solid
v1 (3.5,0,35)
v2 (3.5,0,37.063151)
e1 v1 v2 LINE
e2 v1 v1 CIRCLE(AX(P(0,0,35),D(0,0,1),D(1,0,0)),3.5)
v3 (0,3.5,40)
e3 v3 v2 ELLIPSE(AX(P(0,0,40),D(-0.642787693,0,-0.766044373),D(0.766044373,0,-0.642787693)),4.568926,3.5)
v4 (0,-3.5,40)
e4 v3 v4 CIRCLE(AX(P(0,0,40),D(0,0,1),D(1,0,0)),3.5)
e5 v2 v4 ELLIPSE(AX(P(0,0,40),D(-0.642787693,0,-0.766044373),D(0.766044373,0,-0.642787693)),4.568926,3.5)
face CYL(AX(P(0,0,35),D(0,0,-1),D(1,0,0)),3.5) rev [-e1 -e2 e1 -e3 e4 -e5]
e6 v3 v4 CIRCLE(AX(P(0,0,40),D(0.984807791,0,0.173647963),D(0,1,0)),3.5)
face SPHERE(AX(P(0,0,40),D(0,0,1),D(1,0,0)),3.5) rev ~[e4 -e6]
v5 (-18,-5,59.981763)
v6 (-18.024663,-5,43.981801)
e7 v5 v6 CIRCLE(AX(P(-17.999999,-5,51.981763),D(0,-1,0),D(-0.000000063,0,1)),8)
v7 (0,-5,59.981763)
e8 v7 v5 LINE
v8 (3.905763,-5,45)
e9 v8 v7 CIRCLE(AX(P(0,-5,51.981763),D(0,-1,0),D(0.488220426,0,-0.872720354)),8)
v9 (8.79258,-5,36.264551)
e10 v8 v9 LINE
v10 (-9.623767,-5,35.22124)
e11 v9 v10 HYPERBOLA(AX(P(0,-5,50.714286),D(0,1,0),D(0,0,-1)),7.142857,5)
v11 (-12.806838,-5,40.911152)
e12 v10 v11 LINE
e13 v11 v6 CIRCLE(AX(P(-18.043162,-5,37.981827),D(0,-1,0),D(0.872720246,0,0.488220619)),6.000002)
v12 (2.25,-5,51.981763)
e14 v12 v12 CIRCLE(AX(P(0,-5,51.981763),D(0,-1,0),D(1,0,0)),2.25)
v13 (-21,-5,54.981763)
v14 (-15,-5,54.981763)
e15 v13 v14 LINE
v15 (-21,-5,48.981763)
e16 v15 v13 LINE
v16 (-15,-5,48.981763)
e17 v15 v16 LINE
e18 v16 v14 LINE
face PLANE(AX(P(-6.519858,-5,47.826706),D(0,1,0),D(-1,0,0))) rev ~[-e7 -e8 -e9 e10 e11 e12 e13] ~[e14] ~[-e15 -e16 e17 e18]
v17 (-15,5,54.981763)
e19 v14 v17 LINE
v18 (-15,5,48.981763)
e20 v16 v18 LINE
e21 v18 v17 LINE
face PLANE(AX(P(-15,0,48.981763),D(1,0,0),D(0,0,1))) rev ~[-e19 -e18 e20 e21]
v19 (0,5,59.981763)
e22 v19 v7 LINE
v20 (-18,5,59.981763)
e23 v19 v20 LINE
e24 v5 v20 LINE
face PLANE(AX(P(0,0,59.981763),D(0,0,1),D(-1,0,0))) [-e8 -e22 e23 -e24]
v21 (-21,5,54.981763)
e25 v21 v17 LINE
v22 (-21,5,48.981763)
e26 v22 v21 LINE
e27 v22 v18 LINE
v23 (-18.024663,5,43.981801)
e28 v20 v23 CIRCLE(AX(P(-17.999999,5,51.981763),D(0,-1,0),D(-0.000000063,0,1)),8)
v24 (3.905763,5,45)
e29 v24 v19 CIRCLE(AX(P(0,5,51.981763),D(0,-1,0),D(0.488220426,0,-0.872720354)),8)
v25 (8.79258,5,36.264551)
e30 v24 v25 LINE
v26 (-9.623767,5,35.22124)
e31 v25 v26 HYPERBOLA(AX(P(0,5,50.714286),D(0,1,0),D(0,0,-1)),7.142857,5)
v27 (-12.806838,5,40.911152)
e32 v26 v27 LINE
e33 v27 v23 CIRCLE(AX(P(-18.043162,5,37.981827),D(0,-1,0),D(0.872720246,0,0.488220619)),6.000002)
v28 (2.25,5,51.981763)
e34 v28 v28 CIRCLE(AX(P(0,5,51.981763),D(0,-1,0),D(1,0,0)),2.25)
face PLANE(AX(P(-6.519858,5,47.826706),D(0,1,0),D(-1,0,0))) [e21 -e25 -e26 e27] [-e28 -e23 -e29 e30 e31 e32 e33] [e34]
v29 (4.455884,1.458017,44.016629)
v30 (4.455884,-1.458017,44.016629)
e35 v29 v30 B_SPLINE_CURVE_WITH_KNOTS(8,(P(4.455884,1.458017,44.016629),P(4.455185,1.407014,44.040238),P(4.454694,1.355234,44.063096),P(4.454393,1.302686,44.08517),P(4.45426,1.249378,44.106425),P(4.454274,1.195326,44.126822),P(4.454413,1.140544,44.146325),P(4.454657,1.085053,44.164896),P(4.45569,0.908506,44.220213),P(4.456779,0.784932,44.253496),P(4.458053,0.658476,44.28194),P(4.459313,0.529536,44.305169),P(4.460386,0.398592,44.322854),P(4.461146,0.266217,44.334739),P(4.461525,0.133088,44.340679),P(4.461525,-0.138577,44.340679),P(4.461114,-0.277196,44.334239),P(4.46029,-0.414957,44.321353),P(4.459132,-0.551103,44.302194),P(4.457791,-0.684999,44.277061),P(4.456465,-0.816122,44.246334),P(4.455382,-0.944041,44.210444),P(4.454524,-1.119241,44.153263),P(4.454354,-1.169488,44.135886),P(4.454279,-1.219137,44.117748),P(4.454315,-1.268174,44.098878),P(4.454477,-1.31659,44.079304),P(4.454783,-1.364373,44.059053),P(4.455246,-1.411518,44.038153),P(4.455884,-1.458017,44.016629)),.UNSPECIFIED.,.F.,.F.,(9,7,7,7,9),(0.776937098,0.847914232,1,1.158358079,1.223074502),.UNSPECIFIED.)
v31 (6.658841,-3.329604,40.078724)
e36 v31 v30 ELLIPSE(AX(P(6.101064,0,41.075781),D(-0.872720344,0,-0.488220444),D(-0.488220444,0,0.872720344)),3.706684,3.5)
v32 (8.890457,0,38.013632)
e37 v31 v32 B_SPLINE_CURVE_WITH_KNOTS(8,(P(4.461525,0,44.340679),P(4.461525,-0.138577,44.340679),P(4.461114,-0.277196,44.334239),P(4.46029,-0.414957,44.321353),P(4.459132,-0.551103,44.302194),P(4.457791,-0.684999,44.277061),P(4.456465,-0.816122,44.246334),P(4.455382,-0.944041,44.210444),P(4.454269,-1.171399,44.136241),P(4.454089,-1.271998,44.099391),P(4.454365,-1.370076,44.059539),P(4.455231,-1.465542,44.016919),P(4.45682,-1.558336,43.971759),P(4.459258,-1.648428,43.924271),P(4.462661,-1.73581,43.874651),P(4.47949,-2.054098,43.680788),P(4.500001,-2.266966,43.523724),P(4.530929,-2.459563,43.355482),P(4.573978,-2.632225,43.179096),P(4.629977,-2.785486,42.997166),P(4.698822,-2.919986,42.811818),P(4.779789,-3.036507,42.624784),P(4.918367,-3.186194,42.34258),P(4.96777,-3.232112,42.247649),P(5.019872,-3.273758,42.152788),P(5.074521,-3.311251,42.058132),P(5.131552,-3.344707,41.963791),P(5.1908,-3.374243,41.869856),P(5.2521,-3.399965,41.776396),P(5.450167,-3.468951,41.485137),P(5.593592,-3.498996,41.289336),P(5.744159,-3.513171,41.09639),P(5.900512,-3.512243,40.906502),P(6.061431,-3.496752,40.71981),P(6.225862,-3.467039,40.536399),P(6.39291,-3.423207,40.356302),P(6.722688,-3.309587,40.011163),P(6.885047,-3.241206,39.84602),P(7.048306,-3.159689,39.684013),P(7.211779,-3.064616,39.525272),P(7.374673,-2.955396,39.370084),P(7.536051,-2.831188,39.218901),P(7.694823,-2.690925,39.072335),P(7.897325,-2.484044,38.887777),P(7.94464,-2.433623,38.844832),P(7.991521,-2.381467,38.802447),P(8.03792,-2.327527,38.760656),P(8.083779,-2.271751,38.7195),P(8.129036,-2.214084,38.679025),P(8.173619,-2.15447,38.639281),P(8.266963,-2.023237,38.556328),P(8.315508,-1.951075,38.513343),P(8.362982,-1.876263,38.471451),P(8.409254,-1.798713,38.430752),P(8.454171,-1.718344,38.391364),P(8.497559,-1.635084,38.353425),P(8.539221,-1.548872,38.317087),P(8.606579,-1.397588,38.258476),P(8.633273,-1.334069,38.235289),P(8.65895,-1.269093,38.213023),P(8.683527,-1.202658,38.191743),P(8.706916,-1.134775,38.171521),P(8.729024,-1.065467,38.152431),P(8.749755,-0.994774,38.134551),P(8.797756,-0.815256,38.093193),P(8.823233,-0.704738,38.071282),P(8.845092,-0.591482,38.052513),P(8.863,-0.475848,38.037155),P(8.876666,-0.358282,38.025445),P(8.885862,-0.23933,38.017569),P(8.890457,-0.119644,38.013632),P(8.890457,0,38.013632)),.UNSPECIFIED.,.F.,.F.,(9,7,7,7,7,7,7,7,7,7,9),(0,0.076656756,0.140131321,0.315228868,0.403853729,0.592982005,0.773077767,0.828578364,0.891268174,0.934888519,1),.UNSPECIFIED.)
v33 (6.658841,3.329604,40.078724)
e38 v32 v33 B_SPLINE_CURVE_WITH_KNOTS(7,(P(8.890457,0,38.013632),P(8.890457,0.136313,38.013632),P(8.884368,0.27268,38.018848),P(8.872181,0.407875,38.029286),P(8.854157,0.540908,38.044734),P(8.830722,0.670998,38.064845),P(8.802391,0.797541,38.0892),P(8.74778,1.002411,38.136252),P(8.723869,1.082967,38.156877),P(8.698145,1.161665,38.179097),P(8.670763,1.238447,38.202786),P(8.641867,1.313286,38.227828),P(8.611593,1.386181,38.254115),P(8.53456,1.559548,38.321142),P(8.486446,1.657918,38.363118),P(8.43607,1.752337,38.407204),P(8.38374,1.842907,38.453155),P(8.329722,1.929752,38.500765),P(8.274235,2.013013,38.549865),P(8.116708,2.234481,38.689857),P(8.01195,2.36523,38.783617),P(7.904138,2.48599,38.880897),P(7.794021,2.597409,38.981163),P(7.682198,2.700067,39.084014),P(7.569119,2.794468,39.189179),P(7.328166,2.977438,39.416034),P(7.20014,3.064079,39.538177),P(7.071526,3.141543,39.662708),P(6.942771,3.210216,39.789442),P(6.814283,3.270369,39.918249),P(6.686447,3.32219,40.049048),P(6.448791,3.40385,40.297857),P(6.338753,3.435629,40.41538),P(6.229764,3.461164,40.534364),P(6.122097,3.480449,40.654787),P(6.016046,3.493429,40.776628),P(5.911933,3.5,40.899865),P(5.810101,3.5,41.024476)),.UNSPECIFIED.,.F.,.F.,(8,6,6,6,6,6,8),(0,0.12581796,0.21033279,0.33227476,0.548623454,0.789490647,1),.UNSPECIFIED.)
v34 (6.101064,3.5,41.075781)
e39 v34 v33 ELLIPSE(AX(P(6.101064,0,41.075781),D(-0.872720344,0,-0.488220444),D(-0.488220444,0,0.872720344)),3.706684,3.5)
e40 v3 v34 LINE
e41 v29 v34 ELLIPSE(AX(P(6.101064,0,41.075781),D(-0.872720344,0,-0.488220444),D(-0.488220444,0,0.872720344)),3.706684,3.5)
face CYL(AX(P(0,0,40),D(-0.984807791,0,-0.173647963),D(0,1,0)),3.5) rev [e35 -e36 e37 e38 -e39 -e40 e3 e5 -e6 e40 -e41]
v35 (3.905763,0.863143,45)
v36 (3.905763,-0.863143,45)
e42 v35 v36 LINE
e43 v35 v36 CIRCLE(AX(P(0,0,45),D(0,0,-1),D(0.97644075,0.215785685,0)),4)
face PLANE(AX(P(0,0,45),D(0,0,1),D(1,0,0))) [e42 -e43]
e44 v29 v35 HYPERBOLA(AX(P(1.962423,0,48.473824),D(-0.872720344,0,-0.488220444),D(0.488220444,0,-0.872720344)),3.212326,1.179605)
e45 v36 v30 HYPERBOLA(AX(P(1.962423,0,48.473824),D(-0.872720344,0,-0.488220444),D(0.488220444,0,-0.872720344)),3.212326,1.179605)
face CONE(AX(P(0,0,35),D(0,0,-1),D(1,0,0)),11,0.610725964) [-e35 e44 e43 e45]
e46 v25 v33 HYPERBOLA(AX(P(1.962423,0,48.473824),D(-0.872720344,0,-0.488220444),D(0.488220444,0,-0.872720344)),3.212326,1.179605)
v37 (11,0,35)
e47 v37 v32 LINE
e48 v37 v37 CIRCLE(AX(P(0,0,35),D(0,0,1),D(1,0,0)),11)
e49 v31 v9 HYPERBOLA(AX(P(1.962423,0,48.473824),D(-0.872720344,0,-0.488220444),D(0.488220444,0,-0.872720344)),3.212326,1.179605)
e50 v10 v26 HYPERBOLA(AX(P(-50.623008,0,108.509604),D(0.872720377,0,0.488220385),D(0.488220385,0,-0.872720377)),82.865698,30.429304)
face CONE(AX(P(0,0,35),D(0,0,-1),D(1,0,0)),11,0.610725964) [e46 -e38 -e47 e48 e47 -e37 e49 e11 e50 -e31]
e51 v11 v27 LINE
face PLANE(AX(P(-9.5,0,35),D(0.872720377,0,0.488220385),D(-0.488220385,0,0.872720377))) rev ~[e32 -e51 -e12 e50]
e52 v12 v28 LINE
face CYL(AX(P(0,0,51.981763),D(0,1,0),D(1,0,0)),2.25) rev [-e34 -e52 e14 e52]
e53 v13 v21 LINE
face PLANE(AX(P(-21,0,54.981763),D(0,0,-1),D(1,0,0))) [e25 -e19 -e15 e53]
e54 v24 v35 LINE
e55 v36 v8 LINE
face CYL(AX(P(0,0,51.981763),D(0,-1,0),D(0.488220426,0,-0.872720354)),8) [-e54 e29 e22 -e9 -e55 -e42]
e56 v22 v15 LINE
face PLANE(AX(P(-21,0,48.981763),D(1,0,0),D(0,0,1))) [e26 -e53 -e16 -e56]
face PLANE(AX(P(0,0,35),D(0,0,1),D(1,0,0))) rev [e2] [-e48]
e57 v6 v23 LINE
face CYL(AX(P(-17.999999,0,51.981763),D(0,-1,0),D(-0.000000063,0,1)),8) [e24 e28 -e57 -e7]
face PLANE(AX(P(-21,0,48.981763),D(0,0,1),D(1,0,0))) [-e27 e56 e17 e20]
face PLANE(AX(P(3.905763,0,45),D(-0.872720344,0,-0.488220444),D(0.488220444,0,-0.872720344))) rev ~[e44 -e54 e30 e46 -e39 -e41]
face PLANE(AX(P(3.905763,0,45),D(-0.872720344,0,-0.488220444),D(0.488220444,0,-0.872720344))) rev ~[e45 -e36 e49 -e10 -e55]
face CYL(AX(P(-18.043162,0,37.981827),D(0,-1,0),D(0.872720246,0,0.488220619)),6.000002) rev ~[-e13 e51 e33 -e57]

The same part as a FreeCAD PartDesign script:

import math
import FreeCAD as App
import Part
import Sketcher

V = App.Vector

doc = App.newDocument("Part")
body = doc.addObject("PartDesign::Body", "Body")

# Sketch on XZ plane
sketch1 = doc.addObject("Sketcher::SketchObject", "Sketch")
body.addObject(sketch1)
sketch1.AttachmentSupport = (doc.XZ_Plane, [""])
sketch1.MapMode = "FlatFace"
sketch1.addGeometry([
    Part.LineSegment(V(-12.806838, 5.911152, 0), V(-9.5, 0, 0)),  # 0
    Part.LineSegment(V(-9.5, 0, 0), V(9.5, 0, 0)),  # 1
    Part.LineSegment(V(9.5, 0, 0), V(3.905763, 10, 0)),  # 2
    Part.ArcOfCircle(Part.Circle(V(0, 16.981763, 0), V(0, 0, 1), 8), math.radians(-60.776318), math.radians(89.999997)),  # 3
    Part.LineSegment(V(0, 24.981763, 0), V(-18, 24.981763, 0)),  # 4
    Part.ArcOfCircle(Part.Circle(V(-17.999999, 16.981763, 0), V(0, 0, 1), 8), math.radians(90.000004), math.radians(269.82336)),  # 5
    Part.ArcOfCircle(Part.Circle(V(-18.043162, 2.981827, 0), V(0, 0, 1), 6.000002), math.radians(29.223695), math.radians(89.823351)),  # 6
    Part.Circle(V(0, 16.981763, 0), V(0, 0, 1), 2.25),  # 7
    Part.LineSegment(V(-21, 13.981763, 0), V(-21, 19.981763, 0)),  # 8
    Part.LineSegment(V(-21, 19.981763, 0), V(-15, 19.981763, 0)),  # 9
    Part.LineSegment(V(-15, 19.981763, 0), V(-15, 13.981763, 0)),  # 10
    Part.LineSegment(V(-15, 13.981763, 0), V(-21, 13.981763, 0)),  # 11
], False)
sketch1.addConstraint([
    Sketcher.Constraint("Coincident", 0, 2, 1, 1),
    Sketcher.Constraint("Coincident", 1, 2, 2, 1),
    Sketcher.Constraint("Coincident", 2, 2, 3, 1),
    Sketcher.Constraint("Tangent", 3, 2, 4, 1),
    Sketcher.Constraint("Tangent", 4, 2, 5, 1),
    Sketcher.Constraint("Tangent", 5, 2, 6, 2),
    Sketcher.Constraint("Tangent", 6, 1, 0, 1),
    Sketcher.Constraint("Coincident", 8, 2, 9, 1),
    Sketcher.Constraint("Coincident", 9, 2, 10, 1),
    Sketcher.Constraint("Coincident", 10, 2, 11, 1),
    Sketcher.Constraint("Coincident", 11, 2, 8, 1),
    Sketcher.Constraint("Horizontal", 1),
    Sketcher.Constraint("Horizontal", 4),
    Sketcher.Constraint("Vertical", 8),
    Sketcher.Constraint("Horizontal", 9),
    Sketcher.Constraint("Vertical", 10),
    Sketcher.Constraint("Horizontal", 11),
    Sketcher.Constraint("Coincident", 7, 3, 3, 3),
    Sketcher.Constraint("Equal", 3, 5),
    Sketcher.Constraint("Symmetric", 0, 2, 1, 2, -1, 1),
    Sketcher.Constraint("PointOnObject", 3, 3, -2),
    Sketcher.Constraint("Parallel", 0, 2),
    Sketcher.Constraint("Equal", 11, 8),
    Sketcher.Constraint("Radius", 3, 8.0),
    Sketcher.Constraint("Diameter", 7, 4.5),
    Sketcher.Constraint("DistanceX", 1, 1, 1, 2, 19.0),
    Sketcher.Constraint("DistanceX", 4, 2, 4, 1, 18.0),
    Sketcher.Constraint("DistanceX", 9, 1, 9, 2, 6.0),
    Sketcher.Constraint("DistanceY", -1, 1, 2, 2, 10.0),
    Sketcher.Constraint("DistanceX", 8, 2, -1, 1, 21.0),
    Sketcher.Constraint("DistanceY", 5, 3, 8, 2, 3.0),
    Sketcher.Constraint("Radius", 6, 6.000002),
    Sketcher.Constraint("DistanceY", -1, 1, 5, 2, 8.981801),
])
pad1 = doc.addObject("PartDesign::Pad", "Pad")
body.addObject(pad1)
pad1.Profile = sketch1
pad1.Length = 10
pad1.Midplane = True

# Sketch on XZ plane
sketch2 = doc.addObject("Sketcher::SketchObject", "Sketch001")
body.addObject(sketch2)
sketch2.AttachmentSupport = (doc.XZ_Plane, [""])
sketch2.MapMode = "FlatFace"
sketch2.addGeometry([
    Part.LineSegment(V(0, 0, 0), V(11, 0, 0)),
    Part.LineSegment(V(11, 0, 0), V(4, 10, 0)),
    Part.LineSegment(V(4, 10, 0), V(0, 10, 0)),
    Part.LineSegment(V(0, 10, 0), V(0, 0, 0)),
], False)
sketch2.addConstraint([
    Sketcher.Constraint("Coincident", 0, 2, 1, 1),
    Sketcher.Constraint("Coincident", 1, 2, 2, 1),
    Sketcher.Constraint("Coincident", 2, 2, 3, 1),
    Sketcher.Constraint("Coincident", 3, 2, 0, 1),
    Sketcher.Constraint("Horizontal", 0),
    Sketcher.Constraint("Horizontal", 2),
    Sketcher.Constraint("Vertical", 3),
    Sketcher.Constraint("Coincident", 3, 2, -1, 1),
    Sketcher.Constraint("DistanceX", 0, 1, 0, 2, 11.0),
    Sketcher.Constraint("DistanceX", 2, 2, 2, 1, 4.0),
    Sketcher.Constraint("DistanceY", 3, 2, 3, 1, 10.0),
])
revolution = doc.addObject("PartDesign::Revolution", "Revolution")
body.addObject(revolution)
revolution.Profile = sketch2
revolution.ReferenceAxis = (sketch2, ["V_Axis"])
revolution.Angle = 360

# Sketch on XY plane
sketch3 = doc.addObject("Sketcher::SketchObject", "Sketch002")
body.addObject(sketch3)
sketch3.AttachmentSupport = (doc.XY_Plane, [""])
sketch3.MapMode = "FlatFace"
sketch3.addGeometry(Part.Circle(V(0, 0, 0), V(0, 0, 1), 3.5), False)
sketch3.addConstraint([
    Sketcher.Constraint("Coincident", 0, 3, -1, 1),
    Sketcher.Constraint("Diameter", 0, 7.0),
])
pocket1 = doc.addObject("PartDesign::Pocket", "Pocket")
body.addObject(pocket1)
pocket1.Profile = sketch3
pocket1.Length = 5
pocket1.Reversed = True

# Sketch on an angled plane
sketch4 = doc.addObject("Sketcher::SketchObject", "Sketch003")
body.addObject(sketch4)
sketch4.Placement = App.Placement(V(0, 0, 5), App.Rotation(V(0, 1, 0), V(-0.173647963, 0, 0.984807791), V(0.984807791, 0, 0.173647963), "ZXY"))
sketch4.addGeometry(Part.Circle(V(0, 0, 0), V(0, 0, 1), 3.5), False)
sketch4.addConstraint([
    Sketcher.Constraint("Coincident", 0, 3, -1, 1),
    Sketcher.Constraint("Diameter", 0, 7.0),
])
pocket2 = doc.addObject("PartDesign::Pocket", "Pocket001")
body.addObject(pocket2)
pocket2.Profile = sketch4
pocket2.Length = 10
pocket2.Reversed = True

# Sketch on XZ plane
sketch5 = doc.addObject("Sketcher::SketchObject", "Sketch004")
body.addObject(sketch5)
sketch5.AttachmentSupport = (doc.XZ_Plane, [""])
sketch5.MapMode = "FlatFace"
sketch5.addGeometry([
    Part.ArcOfCircle(Part.Circle(V(0, 5, 0), V(0, 0, 1), 3.5), math.radians(-90), math.radians(90)),
    Part.LineSegment(V(0, 8.5, 0), V(0, 1.5, 0)),
], False)
sketch5.addConstraint([
    Sketcher.Constraint("Coincident", 0, 1, 1, 2),
    Sketcher.Constraint("Coincident", 1, 1, 0, 2),
    Sketcher.Constraint("Vertical", 1),
    Sketcher.Constraint("PointOnObject", 0, 3, -2),
    Sketcher.Constraint("PointOnObject", 0, 1, -2),
    Sketcher.Constraint("Radius", 0, 3.5),
    Sketcher.Constraint("DistanceY", -1, 1, 0, 3, 5.0),
])
groove = doc.addObject("PartDesign::Groove", "Groove")
body.addObject(groove)
groove.Profile = sketch5
groove.ReferenceAxis = (sketch5, ["V_Axis"])
groove.Angle = 360
body2 = doc.addObject("PartDesign::Body", "Body001")
doc.recompute()

body.Placement = App.Placement(V(0, 0, 35), App.Rotation(V(0, 0, 1), 0))
boolean = doc.addObject("PartDesign::Boolean", "Boolean")
body2.addObject(boolean)
boolean.Type = "Fuse"
boolean.addObjects([body])

doc.recompute()
